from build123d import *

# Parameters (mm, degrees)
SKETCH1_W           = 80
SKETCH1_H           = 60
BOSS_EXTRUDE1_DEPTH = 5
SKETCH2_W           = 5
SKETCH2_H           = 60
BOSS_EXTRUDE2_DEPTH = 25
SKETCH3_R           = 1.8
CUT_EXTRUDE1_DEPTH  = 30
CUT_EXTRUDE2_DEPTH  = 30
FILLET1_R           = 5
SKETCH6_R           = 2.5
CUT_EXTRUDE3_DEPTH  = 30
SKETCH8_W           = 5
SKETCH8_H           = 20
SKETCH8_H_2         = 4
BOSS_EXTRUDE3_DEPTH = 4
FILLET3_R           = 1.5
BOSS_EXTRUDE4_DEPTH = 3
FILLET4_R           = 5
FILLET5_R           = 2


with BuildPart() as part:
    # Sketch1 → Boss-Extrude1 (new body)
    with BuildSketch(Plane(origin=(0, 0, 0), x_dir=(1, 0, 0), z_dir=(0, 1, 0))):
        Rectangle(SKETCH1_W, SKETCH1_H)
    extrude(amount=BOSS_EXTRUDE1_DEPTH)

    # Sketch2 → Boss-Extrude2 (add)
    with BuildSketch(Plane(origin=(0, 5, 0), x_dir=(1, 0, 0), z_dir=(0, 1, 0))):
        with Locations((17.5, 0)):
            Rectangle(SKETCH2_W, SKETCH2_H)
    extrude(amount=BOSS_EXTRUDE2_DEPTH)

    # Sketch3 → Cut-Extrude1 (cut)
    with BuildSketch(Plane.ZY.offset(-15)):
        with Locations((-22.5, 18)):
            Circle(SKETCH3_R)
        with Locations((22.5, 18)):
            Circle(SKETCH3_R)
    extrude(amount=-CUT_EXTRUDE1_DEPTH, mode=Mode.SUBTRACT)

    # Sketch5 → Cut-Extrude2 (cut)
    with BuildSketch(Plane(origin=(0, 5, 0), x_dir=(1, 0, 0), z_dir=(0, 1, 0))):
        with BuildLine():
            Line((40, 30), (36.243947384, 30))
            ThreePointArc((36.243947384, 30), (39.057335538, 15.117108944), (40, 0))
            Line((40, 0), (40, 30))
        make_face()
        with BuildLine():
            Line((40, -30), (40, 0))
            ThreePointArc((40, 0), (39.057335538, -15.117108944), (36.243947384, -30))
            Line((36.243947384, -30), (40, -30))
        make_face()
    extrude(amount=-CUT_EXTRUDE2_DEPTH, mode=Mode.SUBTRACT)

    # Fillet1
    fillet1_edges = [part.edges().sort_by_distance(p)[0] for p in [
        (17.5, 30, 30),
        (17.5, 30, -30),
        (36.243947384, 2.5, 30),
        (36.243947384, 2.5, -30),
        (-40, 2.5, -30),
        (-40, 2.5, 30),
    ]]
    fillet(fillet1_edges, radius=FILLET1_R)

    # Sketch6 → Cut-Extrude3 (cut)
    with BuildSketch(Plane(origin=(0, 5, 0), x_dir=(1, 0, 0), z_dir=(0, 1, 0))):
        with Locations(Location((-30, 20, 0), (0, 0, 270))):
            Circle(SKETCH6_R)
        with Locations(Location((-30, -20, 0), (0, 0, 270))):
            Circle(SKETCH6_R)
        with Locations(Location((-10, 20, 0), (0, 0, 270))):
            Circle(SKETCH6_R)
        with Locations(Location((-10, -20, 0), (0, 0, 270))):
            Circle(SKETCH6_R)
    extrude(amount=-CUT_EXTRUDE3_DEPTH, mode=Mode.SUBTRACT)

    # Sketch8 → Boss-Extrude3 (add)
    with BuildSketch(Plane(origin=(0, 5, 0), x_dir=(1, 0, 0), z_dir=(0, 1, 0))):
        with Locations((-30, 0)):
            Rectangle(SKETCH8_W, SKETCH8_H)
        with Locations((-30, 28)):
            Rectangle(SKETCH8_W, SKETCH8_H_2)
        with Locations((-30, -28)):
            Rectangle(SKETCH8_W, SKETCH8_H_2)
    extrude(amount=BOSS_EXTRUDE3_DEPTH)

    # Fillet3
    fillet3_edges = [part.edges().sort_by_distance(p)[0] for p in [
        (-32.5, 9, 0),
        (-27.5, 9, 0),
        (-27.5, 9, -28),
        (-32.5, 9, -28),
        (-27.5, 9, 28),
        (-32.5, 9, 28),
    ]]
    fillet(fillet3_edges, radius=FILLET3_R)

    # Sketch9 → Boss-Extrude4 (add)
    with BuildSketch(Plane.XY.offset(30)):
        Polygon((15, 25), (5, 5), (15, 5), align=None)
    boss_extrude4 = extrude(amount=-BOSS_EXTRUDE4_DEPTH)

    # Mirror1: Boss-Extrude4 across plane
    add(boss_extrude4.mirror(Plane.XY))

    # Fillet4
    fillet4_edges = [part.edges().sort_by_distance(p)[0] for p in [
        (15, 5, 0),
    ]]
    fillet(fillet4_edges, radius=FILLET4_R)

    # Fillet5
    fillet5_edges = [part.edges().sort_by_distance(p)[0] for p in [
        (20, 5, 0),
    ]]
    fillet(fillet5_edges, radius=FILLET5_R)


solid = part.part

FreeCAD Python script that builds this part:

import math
import FreeCAD as App
import Part
import Sketcher
Q = App.Units.Quantity


def edges_at(feature, points):
    """Names of the edges that pass closest to the given points."""
    edges = feature.Shape.Edges
    near = lambda p: min(range(len(edges)), key=lambda i: edges[i].distToShape(Part.Vertex(*p))[0])
    return sorted({f"Edge{near(p) + 1}" for p in points})

doc = App.newDocument("Part")
body = doc.addObject("PartDesign::Body", "Body")

sketch1 = body.newObject("Sketcher::SketchObject", "Sketch")
sketch1.AttachmentSupport = (doc.getObject("XZ_Plane"), [""])
sketch1.MapMode = "FlatFace"
sketch1.addGeometry([
    Part.LineSegment(App.Vector(-40, -30, 0), App.Vector(-40, 30, 0)),
    Part.LineSegment(App.Vector(-40, 30, 0), App.Vector(40, 30, 0)),
    Part.LineSegment(App.Vector(40, 30, 0), App.Vector(40, -30, 0)),
    Part.LineSegment(App.Vector(40, -30, 0), App.Vector(-40, -30, 0)),
], False)
sketch1.addConstraint([
    Sketcher.Constraint("Coincident", 0, 2, 1, 1),
    Sketcher.Constraint("Coincident", 1, 2, 2, 1),
    Sketcher.Constraint("Coincident", 2, 2, 3, 1),
    Sketcher.Constraint("Coincident", 3, 2, 0, 1),
    Sketcher.Constraint("Vertical", 0),
    Sketcher.Constraint("Horizontal", 1),
    Sketcher.Constraint("Vertical", 2),
    Sketcher.Constraint("Horizontal", 3),
    Sketcher.Constraint("Symmetric", 0, 2, 2, 2, -1, 1),
    Sketcher.Constraint("DistanceX", 1, 1, 1, 2, Q("80 mm")),
    Sketcher.Constraint("DistanceY", 0, 1, 0, 2, Q("60 mm")),
])
pad1 = body.newObject("PartDesign::Pad", "Pad")
pad1.Profile = sketch1
pad1.Length = 5
pad1.Reversed = True

sketch2 = body.newObject("Sketcher::SketchObject", "Sketch001")
sketch2.AttachmentSupport = (doc.getObject("XZ_Plane"), [""])
sketch2.MapMode = "FlatFace"
sketch2.AttachmentOffset = App.Placement(App.Vector(0, 0, -5), App.Rotation())
sketch2.addGeometry([
    Part.LineSegment(App.Vector(15, -30, 0), App.Vector(15, 30, 0)),
    Part.LineSegment(App.Vector(15, 30, 0), App.Vector(20, 30, 0)),
    Part.LineSegment(App.Vector(20, 30, 0), App.Vector(20, -30, 0)),
    Part.LineSegment(App.Vector(20, -30, 0), App.Vector(15, -30, 0)),
], False)
sketch2.addConstraint([
    Sketcher.Constraint("Coincident", 0, 2, 1, 1),
    Sketcher.Constraint("Coincident", 1, 2, 2, 1),
    Sketcher.Constraint("Coincident", 2, 2, 3, 1),
    Sketcher.Constraint("Coincident", 3, 2, 0, 1),
    Sketcher.Constraint("Vertical", 0),
    Sketcher.Constraint("Horizontal", 1),
    Sketcher.Constraint("Vertical", 2),
    Sketcher.Constraint("Horizontal", 3),
    Sketcher.Constraint("DistanceX", 1, 1, 1, 2, Q("5 mm")),
    Sketcher.Constraint("DistanceY", 0, 1, 0, 2, Q("60 mm")),
    Sketcher.Constraint("DistanceX", -1, 1, 0, 2, Q("15 mm")),
    Sketcher.Constraint("DistanceY", -1, 1, 0, 2, Q("30 mm")),
])
pad2 = body.newObject("PartDesign::Pad", "Pad001")
pad2.Profile = sketch2
pad2.Length = 25
pad2.Reversed = True

sketch3 = body.newObject("Sketcher::SketchObject", "Sketch002")
sketch3.AttachmentSupport = (doc.getObject("YZ_Plane"), [""])
sketch3.MapMode = "FlatFace"
sketch3.AttachmentOffset = App.Placement(App.Vector(0, 0, 15), App.Rotation())
sketch3.addGeometry([
    Part.Circle(App.Vector(18, -22.5, 0), App.Vector(0, 0, 1), 1.8),
    Part.Circle(App.Vector(18, 22.5, 0), App.Vector(0, 0, 1), 1.8),
], False)
sketch3.addConstraint([
    Sketcher.Constraint("Equal", 0, 1),
    Sketcher.Constraint("Symmetric", 0, 3, 1, 3, -1),
    Sketcher.Constraint("Diameter", 0, Q("3.6 mm")),
    Sketcher.Constraint("DistanceX", -1, 1, 0, 3, Q("18 mm")),
    Sketcher.Constraint("DistanceY", 0, 3, 1, 3, Q("45 mm")),
])
pocket1 = body.newObject("PartDesign::Pocket", "Pocket")
pocket1.Profile = sketch3
pocket1.Length = 30
pocket1.Reversed = True

sketch4 = body.newObject("Sketcher::SketchObject", "Sketch003")
sketch4.AttachmentSupport = (doc.getObject("XZ_Plane"), [""])
sketch4.MapMode = "FlatFace"
sketch4.AttachmentOffset = App.Placement(App.Vector(0, 0, -5), App.Rotation())
sketch4.addGeometry([
    Part.LineSegment(App.Vector(40, -30, 0), App.Vector(36.2, -30, 0)),
    Part.ArcOfCircle(Part.Circle(App.Vector(-81.7, 0, 0), App.Vector(0, 0, 1), 121.7), math.radians(-14.27), math.radians(0)),
    Part.LineSegment(App.Vector(40, 0, 0), App.Vector(40, -30, 0)),
    Part.LineSegment(App.Vector(40, 30, 0), App.Vector(40, 0, 0)),
    Part.ArcOfCircle(Part.Circle(App.Vector(-81.7, 0, 0), App.Vector(0, 0, 1), 121.7), math.radians(0), math.radians(14.27)),
    Part.LineSegment(App.Vector(36.2, 30, 0), App.Vector(40, 30, 0)),
], False)
sketch4.addConstraint([
    Sketcher.Constraint("Coincident", 0, 2, 1, 1),
    Sketcher.Constraint("Tangent", 1, 2, 2, 1),
    Sketcher.Constraint("Coincident", 2, 2, 0, 1),
    Sketcher.Constraint("Tangent", 3, 2, 4, 1),
    Sketcher.Constraint("Coincident", 4, 2, 5, 1),
    Sketcher.Constraint("Coincident", 5, 2, 3, 1),
    Sketcher.Constraint("Horizontal", 0),
    Sketcher.Constraint("Vertical", 2),
    Sketcher.Constraint("Vertical", 3),
    Sketcher.Constraint("Horizontal", 5),
    Sketcher.Constraint("Coincident", 4, 3, 1, 3),
    Sketcher.Constraint("Equal", 1, 4),
    Sketcher.Constraint("Symmetric", 0, 2, 4, 2, -1),
    Sketcher.Constraint("DistanceY", 2, 2, 2, 1, Q("30 mm")),
    Sketcher.Constraint("DistanceX", -1, 1, 1, 2, Q("40 mm")),
    Sketcher.Constraint("Radius", 1, Q("121.684655 mm")),
])
pocket2 = body.newObject("PartDesign::Pocket", "Pocket001")
pocket2.Profile = sketch4
pocket2.Length = 30
pocket2.Reversed = True
doc.recompute()

fillet = body.newObject("PartDesign::Fillet", "Fillet")
fillet.Base = (pocket2, edges_at(pocket2, [
    (17.5, 30, 30),
    (17.5, 30, -30),
    (36.244, 2.5, 30),
    (36.244, 2.5, -30),
    (-40, 2.5, -30),
    (-40, 2.5, 30),
]))
fillet.Radius = 5

sketch5 = body.newObject("Sketcher::SketchObject", "Sketch004")
sketch5.AttachmentSupport = (doc.getObject("XZ_Plane"), [""])
sketch5.MapMode = "FlatFace"
sketch5.AttachmentOffset = App.Placement(App.Vector(0, 0, -5), App.Rotation())
sketch5.addGeometry([
    Part.Circle(App.Vector(-30, -20, 0), App.Vector(0, 0, 1), 2.5),
    Part.Circle(App.Vector(-30, 20, 0), App.Vector(0, 0, 1), 2.5),
    Part.Circle(App.Vector(-10, -20, 0), App.Vector(0, 0, 1), 2.5),
    Part.Circle(App.Vector(-10, 20, 0), App.Vector(0, 0, 1), 2.5),
], False)
sketch5.addConstraint([
    Sketcher.Constraint("Equal", 0, 1),
    Sketcher.Constraint("Equal", 1, 2),
    Sketcher.Constraint("Equal", 2, 3),
    Sketcher.Constraint("Symmetric", 0, 3, 1, 3, -1),
    Sketcher.Constraint("Symmetric", 2, 3, 3, 3, -1),
    Sketcher.Constraint("Horizontal", 0, 3, 2, 3),
    Sketcher.Constraint("Diameter", 0, Q("5 mm")),
    Sketcher.Constraint("DistanceX", 0, 3, -1, 1, Q("30 mm")),
    Sketcher.Constraint("DistanceY", 0, 3, -1, 1, Q("20 mm")),
    Sketcher.Constraint("DistanceX", 2, 3, -1, 1, Q("10 mm")),
])
pocket3 = body.newObject("PartDesign::Pocket", "Pocket002")
pocket3.Profile = sketch5
pocket3.Length = 30
pocket3.Reversed = True

sketch6 = body.newObject("Sketcher::SketchObject", "Sketch005")
sketch6.AttachmentSupport = (doc.getObject("XZ_Plane"), [""])
sketch6.MapMode = "FlatFace"
sketch6.AttachmentOffset = App.Placement(App.Vector(0, 0, -5), App.Rotation())
sketch6.addGeometry([
    Part.LineSegment(App.Vector(-32.5, -10, 0), App.Vector(-32.5, 10, 0)),
    Part.LineSegment(App.Vector(-32.5, 10, 0), App.Vector(-27.5, 10, 0)),
    Part.LineSegment(App.Vector(-27.5, 10, 0), App.Vector(-27.5, -10, 0)),
    Part.LineSegment(App.Vector(-27.5, -10, 0), App.Vector(-32.5, -10, 0)),
    Part.LineSegment(App.Vector(-32.5, -30, 0), App.Vector(-32.5, -26, 0)),
    Part.LineSegment(App.Vector(-32.5, -26, 0), App.Vector(-27.5, -26, 0)),
    Part.LineSegment(App.Vector(-27.5, -26, 0), App.Vector(-27.5, -30, 0)),
    Part.LineSegment(App.Vector(-27.5, -30, 0), App.Vector(-32.5, -30, 0)),
    Part.LineSegment(App.Vector(-32.5, 26, 0), App.Vector(-32.5, 30, 0)),
    Part.LineSegment(App.Vector(-32.5, 30, 0), App.Vector(-27.5, 30, 0)),
    Part.LineSegment(App.Vector(-27.5, 30, 0), App.Vector(-27.5, 26, 0)),
    Part.LineSegment(App.Vector(-27.5, 26, 0), App.Vector(-32.5, 26, 0)),
], False)
sketch6.addConstraint([
    Sketcher.Constraint("Coincident", 0, 2, 1, 1),
    Sketcher.Constraint("Coincident", 1, 2, 2, 1),
    Sketcher.Constraint("Coincident", 2, 2, 3, 1),
    Sketcher.Constraint("Coincident", 3, 2, 0, 1),
    Sketcher.Constraint("Coincident", 4, 2, 5, 1),
    Sketcher.Constraint("Coincident", 5, 2, 6, 1),
    Sketcher.Constraint("Coincident", 6, 2, 7, 1),
    Sketcher.Constraint("Coincident", 7, 2, 4, 1),
    Sketcher.Constraint("Coincident", 8, 2, 9, 1),
    Sketcher.Constraint("Coincident", 9, 2, 10, 1),
    Sketcher.Constraint("Coincident", 10, 2, 11, 1),
    Sketcher.Constraint("Coincident", 11, 2, 8, 1),
    Sketcher.Constraint("Vertical", 0),
    Sketcher.Constraint("Horizontal", 1),
    Sketcher.Constraint("Vertical", 2),
    Sketcher.Constraint("Horizontal", 3),
    Sketcher.Constraint("Vertical", 4),
    Sketcher.Constraint("Horizontal", 5),
    Sketcher.Constraint("Vertical", 6),
    Sketcher.Constraint("Horizontal", 7),
    Sketcher.Constraint("Vertical", 8),
    Sketcher.Constraint("Horizontal", 9),
    Sketcher.Constraint("Vertical", 10),
    Sketcher.Constraint("Horizontal", 11),
    Sketcher.Constraint("Symmetric", 7, 2, 8, 2, -1),
    Sketcher.Constraint("Symmetric", 5, 2, 10, 2, -1),
    Sketcher.Constraint("Vertical", 3, 2, 4, 2),
    Sketcher.Constraint("Vertical", 2, 2, 5, 2),
    Sketcher.Constraint("DistanceX", 1, 1, 1, 2, Q("5 mm")),
    Sketcher.Constraint("DistanceY", 0, 1, 0, 2, Q("20 mm")),
    Sketcher.Constraint("DistanceY", 4, 1, 4, 2, Q("4 mm")),
    Sketcher.Constraint("DistanceY", -1, 1, 0, 2, Q("10 mm")),
    Sketcher.Constraint("DistanceY", 4, 2, -1, 1, Q("26 mm")),
    Sketcher.Constraint("DistanceX", 0, 2, -1, 1, Q("32.5 mm")),
])
pad3 = body.newObject("PartDesign::Pad", "Pad002")
pad3.Profile = sketch6
pad3.Length = 4
pad3.Reversed = True
doc.recompute()

fillet2 = body.newObject("PartDesign::Fillet", "Fillet001")
fillet2.Base = (pad3, edges_at(pad3, [
    (-32.5, 9, 0),
    (-27.5, 9, 0),
    (-27.5, 9, -28),
    (-32.5, 9, -28),
    (-27.5, 9, 28),
    (-32.5, 9, 28),
]))
fillet2.Radius = 1.5

sketch7 = body.newObject("Sketcher::SketchObject", "Sketch006")
sketch7.AttachmentSupport = (doc.getObject("XY_Plane"), [""])
sketch7.MapMode = "FlatFace"
sketch7.AttachmentOffset = App.Placement(App.Vector(0, 0, 30), App.Rotation())
sketch7.addGeometry([
    Part.LineSegment(App.Vector(15, 25, 0), App.Vector(5, 5, 0)),
    Part.LineSegment(App.Vector(5, 5, 0), App.Vector(15, 5, 0)),
    Part.LineSegment(App.Vector(15, 5, 0), App.Vector(15, 25, 0)),
], False)
sketch7.addConstraint([
    Sketcher.Constraint("Coincident", 0, 2, 1, 1),
    Sketcher.Constraint("Coincident", 1, 2, 2, 1),
    Sketcher.Constraint("Coincident", 2, 2, 0, 1),
    Sketcher.Constraint("Horizontal", 1),
    Sketcher.Constraint("Vertical", 2),
    Sketcher.Constraint("DistanceX", 1, 1, 1, 2, Q("10 mm")),
    Sketcher.Constraint("DistanceY", 2, 1, 2, 2, Q("20 mm")),
    Sketcher.Constraint("DistanceX", -1, 1, 0, 2, Q("5 mm")),
    Sketcher.Constraint("DistanceY", -1, 1, 0, 2, Q("5 mm")),
])
pad4 = body.newObject("PartDesign::Pad", "Pad003")
pad4.Profile = sketch7
pad4.Length = 3
pad4.Reversed = True
doc.recompute()

mirrored = body.newObject("PartDesign::Mirrored", "Mirrored")
mirrored.Originals = [pad4]
mirrored.MirrorPlane = (doc.getObject("XY_Plane"), [""])
body.Tip = mirrored
doc.recompute()

fillet3 = body.newObject("PartDesign::Fillet", "Fillet002")
fillet3.Base = (mirrored, edges_at(mirrored, [(15, 5, 0)]))
fillet3.Radius = 5
doc.recompute()

fillet4 = body.newObject("PartDesign::Fillet", "Fillet003")
fillet4.Base = (fillet3, edges_at(fillet3, [(20, 5, 0)]))
fillet4.Radius = 2

doc.recompute()
